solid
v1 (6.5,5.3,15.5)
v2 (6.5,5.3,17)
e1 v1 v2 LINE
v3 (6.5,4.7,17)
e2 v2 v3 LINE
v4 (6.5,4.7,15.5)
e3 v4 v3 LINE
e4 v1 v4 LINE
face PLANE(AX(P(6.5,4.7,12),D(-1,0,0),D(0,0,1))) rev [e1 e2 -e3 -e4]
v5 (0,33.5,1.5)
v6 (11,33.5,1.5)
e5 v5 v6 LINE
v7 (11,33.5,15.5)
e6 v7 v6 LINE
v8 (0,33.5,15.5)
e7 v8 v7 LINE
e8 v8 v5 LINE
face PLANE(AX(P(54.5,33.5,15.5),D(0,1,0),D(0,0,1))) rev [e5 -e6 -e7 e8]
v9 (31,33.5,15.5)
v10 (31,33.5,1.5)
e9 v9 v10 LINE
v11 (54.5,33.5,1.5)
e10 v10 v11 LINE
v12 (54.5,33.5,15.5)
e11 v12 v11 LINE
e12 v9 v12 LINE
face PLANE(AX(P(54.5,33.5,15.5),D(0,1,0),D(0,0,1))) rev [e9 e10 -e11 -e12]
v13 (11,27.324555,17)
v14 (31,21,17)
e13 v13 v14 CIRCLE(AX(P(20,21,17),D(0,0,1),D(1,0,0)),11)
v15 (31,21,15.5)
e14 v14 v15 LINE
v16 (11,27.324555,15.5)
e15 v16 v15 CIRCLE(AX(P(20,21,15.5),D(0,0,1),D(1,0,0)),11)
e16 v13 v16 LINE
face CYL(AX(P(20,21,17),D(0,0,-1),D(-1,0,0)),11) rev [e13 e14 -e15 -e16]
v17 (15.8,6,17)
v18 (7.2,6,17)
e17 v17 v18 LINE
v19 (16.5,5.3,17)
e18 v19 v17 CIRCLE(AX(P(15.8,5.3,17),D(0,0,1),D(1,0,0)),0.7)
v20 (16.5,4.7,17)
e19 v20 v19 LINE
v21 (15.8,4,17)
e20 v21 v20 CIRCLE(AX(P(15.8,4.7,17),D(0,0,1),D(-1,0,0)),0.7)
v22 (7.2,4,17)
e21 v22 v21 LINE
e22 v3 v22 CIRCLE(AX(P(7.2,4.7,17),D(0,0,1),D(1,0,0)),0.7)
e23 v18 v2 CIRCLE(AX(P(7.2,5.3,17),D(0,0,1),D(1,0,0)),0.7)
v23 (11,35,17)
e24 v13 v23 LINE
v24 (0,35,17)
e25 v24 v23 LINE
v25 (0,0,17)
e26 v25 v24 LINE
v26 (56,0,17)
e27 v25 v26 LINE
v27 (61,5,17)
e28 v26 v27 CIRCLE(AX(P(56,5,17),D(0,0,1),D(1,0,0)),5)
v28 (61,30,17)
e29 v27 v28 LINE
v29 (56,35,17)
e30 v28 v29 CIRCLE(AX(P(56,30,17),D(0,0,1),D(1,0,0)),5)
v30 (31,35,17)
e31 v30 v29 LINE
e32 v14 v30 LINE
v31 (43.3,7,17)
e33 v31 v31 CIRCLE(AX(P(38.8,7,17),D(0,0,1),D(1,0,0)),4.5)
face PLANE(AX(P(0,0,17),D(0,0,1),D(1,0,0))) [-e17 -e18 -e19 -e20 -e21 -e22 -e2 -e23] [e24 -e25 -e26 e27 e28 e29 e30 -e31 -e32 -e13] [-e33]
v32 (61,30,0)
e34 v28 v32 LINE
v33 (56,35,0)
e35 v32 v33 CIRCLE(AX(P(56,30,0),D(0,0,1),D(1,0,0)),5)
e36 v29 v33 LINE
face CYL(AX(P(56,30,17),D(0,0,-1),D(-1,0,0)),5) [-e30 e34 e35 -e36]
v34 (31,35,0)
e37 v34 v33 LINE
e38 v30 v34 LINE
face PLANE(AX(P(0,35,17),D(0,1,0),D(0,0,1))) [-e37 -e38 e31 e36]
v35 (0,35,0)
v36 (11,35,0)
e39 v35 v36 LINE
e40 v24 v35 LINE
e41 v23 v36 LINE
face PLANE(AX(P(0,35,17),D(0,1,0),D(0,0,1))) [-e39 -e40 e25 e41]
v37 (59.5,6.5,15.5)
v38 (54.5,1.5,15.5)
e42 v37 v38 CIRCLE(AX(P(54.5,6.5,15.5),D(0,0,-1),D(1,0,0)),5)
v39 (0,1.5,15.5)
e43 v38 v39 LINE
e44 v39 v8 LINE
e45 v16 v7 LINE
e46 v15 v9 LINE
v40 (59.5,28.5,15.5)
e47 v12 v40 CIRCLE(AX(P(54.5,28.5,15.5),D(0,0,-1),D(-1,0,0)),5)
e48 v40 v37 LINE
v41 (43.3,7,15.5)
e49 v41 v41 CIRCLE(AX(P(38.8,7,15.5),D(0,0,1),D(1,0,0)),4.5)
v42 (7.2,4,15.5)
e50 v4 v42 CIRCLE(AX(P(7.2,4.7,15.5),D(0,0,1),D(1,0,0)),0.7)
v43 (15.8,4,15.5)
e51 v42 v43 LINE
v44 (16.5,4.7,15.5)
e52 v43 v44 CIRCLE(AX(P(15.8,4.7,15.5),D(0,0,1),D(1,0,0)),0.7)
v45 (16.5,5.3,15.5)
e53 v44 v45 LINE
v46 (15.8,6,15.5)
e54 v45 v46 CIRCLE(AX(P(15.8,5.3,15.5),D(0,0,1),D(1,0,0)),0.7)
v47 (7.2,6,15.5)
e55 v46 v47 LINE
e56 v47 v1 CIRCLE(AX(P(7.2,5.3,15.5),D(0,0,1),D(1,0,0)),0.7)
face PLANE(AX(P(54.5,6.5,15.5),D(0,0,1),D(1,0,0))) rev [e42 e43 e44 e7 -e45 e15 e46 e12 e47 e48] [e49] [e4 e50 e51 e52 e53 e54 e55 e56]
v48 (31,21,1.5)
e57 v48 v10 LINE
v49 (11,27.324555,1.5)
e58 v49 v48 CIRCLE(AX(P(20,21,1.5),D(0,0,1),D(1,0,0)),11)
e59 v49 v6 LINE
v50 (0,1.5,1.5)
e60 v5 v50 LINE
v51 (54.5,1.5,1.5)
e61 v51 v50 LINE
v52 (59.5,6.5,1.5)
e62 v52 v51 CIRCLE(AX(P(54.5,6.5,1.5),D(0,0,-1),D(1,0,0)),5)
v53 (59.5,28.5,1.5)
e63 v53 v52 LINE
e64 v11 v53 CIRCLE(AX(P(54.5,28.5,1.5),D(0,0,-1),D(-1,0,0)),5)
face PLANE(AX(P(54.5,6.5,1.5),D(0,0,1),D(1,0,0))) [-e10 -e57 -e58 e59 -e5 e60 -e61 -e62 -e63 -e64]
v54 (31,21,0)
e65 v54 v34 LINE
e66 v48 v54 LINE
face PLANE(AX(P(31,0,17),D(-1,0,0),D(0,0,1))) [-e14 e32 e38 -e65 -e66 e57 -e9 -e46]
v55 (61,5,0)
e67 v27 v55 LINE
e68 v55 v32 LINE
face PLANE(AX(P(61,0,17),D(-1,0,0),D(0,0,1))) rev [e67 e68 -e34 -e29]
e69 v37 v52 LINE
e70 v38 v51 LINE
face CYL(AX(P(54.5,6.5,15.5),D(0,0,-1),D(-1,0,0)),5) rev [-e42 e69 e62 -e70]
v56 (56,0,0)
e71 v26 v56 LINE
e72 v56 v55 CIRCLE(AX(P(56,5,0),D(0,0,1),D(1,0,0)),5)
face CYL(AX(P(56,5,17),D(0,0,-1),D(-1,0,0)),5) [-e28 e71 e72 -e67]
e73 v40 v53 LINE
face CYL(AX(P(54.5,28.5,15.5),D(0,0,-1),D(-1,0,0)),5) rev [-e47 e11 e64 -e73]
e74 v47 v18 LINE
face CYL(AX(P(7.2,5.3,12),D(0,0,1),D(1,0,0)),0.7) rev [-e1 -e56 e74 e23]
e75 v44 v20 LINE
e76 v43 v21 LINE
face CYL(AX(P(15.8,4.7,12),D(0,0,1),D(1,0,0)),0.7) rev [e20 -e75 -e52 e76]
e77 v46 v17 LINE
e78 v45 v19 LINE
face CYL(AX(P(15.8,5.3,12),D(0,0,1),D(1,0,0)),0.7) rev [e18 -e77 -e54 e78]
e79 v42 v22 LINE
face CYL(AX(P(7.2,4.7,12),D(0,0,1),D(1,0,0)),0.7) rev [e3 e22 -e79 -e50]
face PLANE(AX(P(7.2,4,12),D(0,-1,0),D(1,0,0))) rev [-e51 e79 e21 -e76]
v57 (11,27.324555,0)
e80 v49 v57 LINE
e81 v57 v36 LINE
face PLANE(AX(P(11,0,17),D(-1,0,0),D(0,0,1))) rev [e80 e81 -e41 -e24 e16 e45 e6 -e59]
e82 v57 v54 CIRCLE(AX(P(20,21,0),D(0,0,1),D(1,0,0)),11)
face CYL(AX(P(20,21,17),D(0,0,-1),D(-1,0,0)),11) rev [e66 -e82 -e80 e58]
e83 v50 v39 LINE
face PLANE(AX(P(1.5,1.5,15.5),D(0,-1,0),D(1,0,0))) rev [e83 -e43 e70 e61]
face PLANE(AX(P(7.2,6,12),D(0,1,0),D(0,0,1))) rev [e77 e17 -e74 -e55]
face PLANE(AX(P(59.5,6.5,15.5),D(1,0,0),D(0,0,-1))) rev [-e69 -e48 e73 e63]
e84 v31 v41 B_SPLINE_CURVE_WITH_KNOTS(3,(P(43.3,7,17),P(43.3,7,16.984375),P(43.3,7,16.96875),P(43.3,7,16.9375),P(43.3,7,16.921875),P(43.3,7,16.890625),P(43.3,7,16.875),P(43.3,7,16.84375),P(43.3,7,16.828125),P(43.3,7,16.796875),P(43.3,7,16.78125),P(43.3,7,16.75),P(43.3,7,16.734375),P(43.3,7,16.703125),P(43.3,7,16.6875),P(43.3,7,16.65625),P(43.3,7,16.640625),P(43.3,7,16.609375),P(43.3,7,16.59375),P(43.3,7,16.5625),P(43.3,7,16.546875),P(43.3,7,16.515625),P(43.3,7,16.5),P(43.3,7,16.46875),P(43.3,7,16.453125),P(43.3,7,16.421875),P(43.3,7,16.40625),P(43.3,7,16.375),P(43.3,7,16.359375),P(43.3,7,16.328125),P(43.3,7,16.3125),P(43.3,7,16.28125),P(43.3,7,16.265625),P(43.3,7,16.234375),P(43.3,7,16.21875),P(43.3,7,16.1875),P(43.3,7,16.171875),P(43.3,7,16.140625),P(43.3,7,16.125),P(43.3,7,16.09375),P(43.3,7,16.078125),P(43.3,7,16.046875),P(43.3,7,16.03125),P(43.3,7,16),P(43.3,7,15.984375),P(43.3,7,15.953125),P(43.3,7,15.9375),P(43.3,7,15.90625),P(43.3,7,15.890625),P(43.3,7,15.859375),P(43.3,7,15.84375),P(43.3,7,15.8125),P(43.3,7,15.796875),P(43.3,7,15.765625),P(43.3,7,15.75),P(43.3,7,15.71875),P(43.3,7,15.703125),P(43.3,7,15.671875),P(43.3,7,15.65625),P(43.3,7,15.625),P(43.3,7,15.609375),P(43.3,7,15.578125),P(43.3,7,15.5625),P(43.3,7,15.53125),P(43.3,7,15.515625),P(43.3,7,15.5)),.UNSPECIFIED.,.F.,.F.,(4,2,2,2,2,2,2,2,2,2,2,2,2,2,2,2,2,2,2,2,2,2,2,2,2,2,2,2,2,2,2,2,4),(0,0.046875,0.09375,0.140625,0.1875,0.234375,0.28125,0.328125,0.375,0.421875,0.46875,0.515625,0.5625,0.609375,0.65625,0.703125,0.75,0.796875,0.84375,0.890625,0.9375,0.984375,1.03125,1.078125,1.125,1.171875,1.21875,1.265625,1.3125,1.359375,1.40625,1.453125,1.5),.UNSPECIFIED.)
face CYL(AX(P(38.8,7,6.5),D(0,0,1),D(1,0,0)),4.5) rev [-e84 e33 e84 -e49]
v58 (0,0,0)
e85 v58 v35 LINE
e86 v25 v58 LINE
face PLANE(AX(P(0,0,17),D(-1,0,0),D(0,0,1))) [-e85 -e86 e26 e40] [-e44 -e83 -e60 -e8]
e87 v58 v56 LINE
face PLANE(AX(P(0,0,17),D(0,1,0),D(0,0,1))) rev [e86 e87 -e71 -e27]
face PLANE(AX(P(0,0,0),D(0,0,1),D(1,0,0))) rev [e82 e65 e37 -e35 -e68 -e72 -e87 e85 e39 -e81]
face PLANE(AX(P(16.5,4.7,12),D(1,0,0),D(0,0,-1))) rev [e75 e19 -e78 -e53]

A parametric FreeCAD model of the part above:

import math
import FreeCAD as App
import Part
import Sketcher
Q = App.Units.Quantity

doc = App.newDocument("Part")
params = doc.addObject("Spreadsheet::Sheet", "Params")
for row, (alias, value) in enumerate([
    ("sketch1_radius", "5 mm"),
    ("sketch1_radius2", "11 mm"),
    ("sketch1_width", "25 mm"),
    ("sketch1_width2", "11 mm"),
    ("sketch1_width3", "56 mm"),
    ("pad1_length", "17 mm"),
    ("sketch2_radius", "5 mm"),
    ("sketch2_width", "53 mm"),
    ("sketch2_height", "22 mm"),
    ("pocket1_length", "14 mm"),
    ("sketch3_radius", "0.7 mm"),
    ("sketch3_width", "8.6 mm"),
    ("sketch3_height", "0.6 mm"),
    ("pocket2_length", "5 mm"),
    ("sketch4_width", "32 mm"),
    ("sketch4_height", "14 mm"),
    ("pocket3_length", "11 mm"),
    ("sketch5_diameter", "9 mm"),
    ("pocket4_length", "10.5 mm"),
], start=1):
    params.set(f"A{row}", alias)
    params.set(f"B{row}", "=" + value)
    params.setAlias(f"B{row}", alias)

body = doc.addObject("PartDesign::Body", "Body")

# Sketch on XY plane
sketch1 = doc.addObject("Sketcher::SketchObject", "Sketch")
body.addObject(sketch1)
sketch1.AttachmentSupport = (doc.XY_Plane, [""])
sketch1.MapMode = "FlatFace"
sketch1.addGeometry(Part.LineSegment(App.Vector(61, 5, 0), App.Vector(61, 30, 0)), False)
sketch1.addGeometry(Part.ArcOfCircle(Part.Circle(App.Vector(56, 30, 0), App.Vector(0, 0, 1), 5), math.radians(0), math.radians(90)), False)
sketch1.addGeometry(Part.LineSegment(App.Vector(56, 35, 0), App.Vector(31, 35, 0)), False)
sketch1.addGeometry(Part.LineSegment(App.Vector(31, 35, 0), App.Vector(31, 21, 0)), False)
sketch1.addGeometry(Part.ArcOfCircle(Part.Circle(App.Vector(20, 21, 0), App.Vector(0, 0, 1), 11), math.radians(145), math.radians(360)), False)
sketch1.addGeometry(Part.LineSegment(App.Vector(11, 27, 0), App.Vector(11, 35, 0)), False)
sketch1.addGeometry(Part.LineSegment(App.Vector(11, 35, 0), App.Vector(0, 35, 0)), False)
sketch1.addGeometry(Part.LineSegment(App.Vector(0, 35, 0), App.Vector(0, 0, 0)), False)
sketch1.addGeometry(Part.LineSegment(App.Vector(0, 0, 0), App.Vector(56, 0, 0)), False)
sketch1.addGeometry(Part.ArcOfCircle(Part.Circle(App.Vector(56, 5, 0), App.Vector(0, 0, 1), 5), math.radians(-90), math.radians(0)), False)
sketch1.addConstraint(Sketcher.Constraint("Tangent", 0, 2, 1, 1))
sketch1.addConstraint(Sketcher.Constraint("Tangent", 1, 2, 2, 1))
sketch1.addConstraint(Sketcher.Constraint("Coincident", 2, 2, 3, 1))
sketch1.addConstraint(Sketcher.Constraint("Tangent", 3, 2, 4, 2))
sketch1.addConstraint(Sketcher.Constraint("Coincident", 4, 1, 5, 1))
sketch1.addConstraint(Sketcher.Constraint("Coincident", 5, 2, 6, 1))
sketch1.addConstraint(Sketcher.Constraint("Coincident", 6, 2, 7, 1))
sketch1.addConstraint(Sketcher.Constraint("Coincident", 7, 2, 8, 1))
sketch1.addConstraint(Sketcher.Constraint("Tangent", 8, 2, 9, 1))
sketch1.addConstraint(Sketcher.Constraint("Tangent", 9, 2, 0, 1))
sketch1.addConstraint(Sketcher.Constraint("Vertical", 0))
sketch1.addConstraint(Sketcher.Constraint("Horizontal", 2))
sketch1.addConstraint(Sketcher.Constraint("Vertical", 3))
sketch1.addConstraint(Sketcher.Constraint("Vertical", 5))
sketch1.addConstraint(Sketcher.Constraint("Horizontal", 6))
sketch1.addConstraint(Sketcher.Constraint("Vertical", 7))
sketch1.addConstraint(Sketcher.Constraint("Horizontal", 8))
sketch1.addConstraint(Sketcher.Constraint("Coincident", 7, 2, -1, 1))
sketch1.addConstraint(Sketcher.Constraint("Equal", 1, 9))
sketch1.addConstraint(Sketcher.Constraint("Horizontal", 2, 2, 5, 2))
sketch1.addConstraint(Sketcher.Constraint("Equal", 2, 0))
sketch1.addConstraint(Sketcher.Constraint("Radius", 1, Q("5 mm")))
sketch1.addConstraint(Sketcher.Constraint("Radius", 4, Q("11 mm")))
sketch1.addConstraint(Sketcher.Constraint("DistanceX", 2, 2, 2, 1, Q("25 mm")))
sketch1.addConstraint(Sketcher.Constraint("DistanceX", 6, 2, 6, 1, Q("11 mm")))
sketch1.addConstraint(Sketcher.Constraint("DistanceX", 8, 1, 8, 2, Q("56 mm")))
sketch1.addConstraint(Sketcher.Constraint("DistanceY", 3, 2, 3, 1, Q("14 mm")))
sketch1.setExpression("Constraints[21]", "Params.sketch1_radius")
sketch1.setExpression("Constraints[22]", "Params.sketch1_radius2")
sketch1.setExpression("Constraints[23]", "Params.sketch1_width")
sketch1.setExpression("Constraints[24]", "Params.sketch1_width2")
sketch1.setExpression("Constraints[25]", "Params.sketch1_width3")
pad1 = doc.addObject("PartDesign::Pad", "Pad")
body.addObject(pad1)
pad1.Profile = sketch1
pad1.setExpression("Length", "Params.pad1_length")

# Sketch on XY plane
sketch2 = doc.addObject("Sketcher::SketchObject", "Sketch001")
body.addObject(sketch2)
sketch2.AttachmentSupport = (doc.XY_Plane, [""])
sketch2.MapMode = "FlatFace"
sketch2.AttachmentOffset = App.Placement(App.Vector(0, 0, 1.5), App.Rotation())
sketch2.addGeometry(Part.LineSegment(App.Vector(2, 34, 0), App.Vector(54, 34, 0)), False)
sketch2.addGeometry(Part.ArcOfCircle(Part.Circle(App.Vector(54, 28, 0), App.Vector(0, 0, 1), 5), math.radians(0), math.radians(90)), False)
sketch2.addGeometry(Part.LineSegment(App.Vector(60, 28, 0), App.Vector(60, 6, 0)), False)
sketch2.addGeometry(Part.ArcOfCircle(Part.Circle(App.Vector(54, 6, 0), App.Vector(0, 0, 1), 5), math.radians(-90), math.radians(0)), False)
sketch2.addGeometry(Part.LineSegment(App.Vector(54, 2, 0), App.Vector(2, 2, 0)), False)
sketch2.addGeometry(Part.LineSegment(App.Vector(2, 2, 0), App.Vector(2, 34, 0)), False)
sketch2.addConstraint(Sketcher.Constraint("Tangent", 0, 2, 1, 2))
sketch2.addConstraint(Sketcher.Constraint("Tangent", 1, 1, 2, 1))
sketch2.addConstraint(Sketcher.Constraint("Tangent", 2, 2, 3, 2))
sketch2.addConstraint(Sketcher.Constraint("Tangent", 3, 1, 4, 1))
sketch2.addConstraint(Sketcher.Constraint("Coincident", 4, 2, 5, 1))
sketch2.addConstraint(Sketcher.Constraint("Coincident", 5, 2, 0, 1))
sketch2.addConstraint(Sketcher.Constraint("Horizontal", 0))
sketch2.addConstraint(Sketcher.Constraint("Vertical", 2))
sketch2.addConstraint(Sketcher.Constraint("Horizontal", 4))
sketch2.addConstraint(Sketcher.Constraint("Vertical", 5))
sketch2.addConstraint(Sketcher.Constraint("Equal", 1, 3))
sketch2.addConstraint(Sketcher.Constraint("Radius", 1, Q("5 mm")))
sketch2.addConstraint(Sketcher.Constraint("DistanceX", 0, 1, 0, 2, Q("53 mm")))
sketch2.addConstraint(Sketcher.Constraint("DistanceY", 2, 2, 2, 1, Q("22 mm")))
sketch2.addConstraint(Sketcher.Constraint("DistanceX", -1, 1, 1, 3, Q("54.5 mm")))
sketch2.addConstraint(Sketcher.Constraint("DistanceY", -1, 1, 1, 3, Q("28.5 mm")))
sketch2.setExpression("Constraints[11]", "Params.sketch2_radius")
sketch2.setExpression("Constraints[12]", "Params.sketch2_width")
sketch2.setExpression("Constraints[13]", "Params.sketch2_height")
pocket1 = doc.addObject("PartDesign::Pocket", "Pocket")
body.addObject(pocket1)
pocket1.Profile = sketch2
pocket1.setExpression("Length", "Params.pocket1_length")
pocket1.Reversed = True

# Sketch on XY plane
sketch3 = doc.addObject("Sketcher::SketchObject", "Sketch002")
body.addObject(sketch3)
sketch3.AttachmentSupport = (doc.XY_Plane, [""])
sketch3.MapMode = "FlatFace"
sketch3.AttachmentOffset = App.Placement(App.Vector(0, 0, 17), App.Rotation())
sketch3.addGeometry(Part.LineSegment(App.Vector(7.2, 4, 0), App.Vector(15.8, 4, 0)), False)
sketch3.addGeometry(Part.ArcOfCircle(Part.Circle(App.Vector(15.8, 4.7, 0), App.Vector(0, 0, 1), 0.7), math.radians(-90), math.radians(0)), False)
sketch3.addGeometry(Part.LineSegment(App.Vector(16.5, 4.7, 0), App.Vector(16.5, 5.3, 0)), False)
sketch3.addGeometry(Part.ArcOfCircle(Part.Circle(App.Vector(15.8, 5.3, 0), App.Vector(0, 0, 1), 0.7), math.radians(0), math.radians(90)), False)
sketch3.addGeometry(Part.LineSegment(App.Vector(15.8, 6, 0), App.Vector(7.2, 6, 0)), False)
sketch3.addGeometry(Part.ArcOfCircle(Part.Circle(App.Vector(7.2, 5.3, 0), App.Vector(0, 0, 1), 0.7), math.radians(90), math.radians(180)), False)
sketch3.addGeometry(Part.LineSegment(App.Vector(6.5, 5.3, 0), App.Vector(6.5, 4.7, 0)), False)
sketch3.addGeometry(Part.ArcOfCircle(Part.Circle(App.Vector(7.2, 4.7, 0), App.Vector(0, 0, 1), 0.7), math.radians(180), math.radians(270)), False)
sketch3.addConstraint(Sketcher.Constraint("Tangent", 0, 2, 1, 1))
sketch3.addConstraint(Sketcher.Constraint("Tangent", 1, 2, 2, 1))
sketch3.addConstraint(Sketcher.Constraint("Tangent", 2, 2, 3, 1))
sketch3.addConstraint(Sketcher.Constraint("Tangent", 3, 2, 4, 1))
sketch3.addConstraint(Sketcher.Constraint("Tangent", 4, 2, 5, 1))
sketch3.addConstraint(Sketcher.Constraint("Tangent", 5, 2, 6, 1))
sketch3.addConstraint(Sketcher.Constraint("Tangent", 6, 2, 7, 1))
sketch3.addConstraint(Sketcher.Constraint("Tangent", 7, 2, 0, 1))
sketch3.addConstraint(Sketcher.Constraint("Horizontal", 0))
sketch3.addConstraint(Sketcher.Constraint("Vertical", 2))
sketch3.addConstraint(Sketcher.Constraint("Horizontal", 4))
sketch3.addConstraint(Sketcher.Constraint("Vertical", 6))
sketch3.addConstraint(Sketcher.Constraint("Equal", 1, 3))
sketch3.addConstraint(Sketcher.Constraint("Equal", 3, 5))
sketch3.addConstraint(Sketcher.Constraint("Equal", 5, 7))
sketch3.addConstraint(Sketcher.Constraint("Radius", 1, Q("0.7 mm")))
sketch3.addConstraint(Sketcher.Constraint("DistanceX", 0, 1, 0, 2, Q("8.6 mm")))
sketch3.addConstraint(Sketcher.Constraint("DistanceY", 2, 1, 2, 2, Q("0.6 mm")))
sketch3.addConstraint(Sketcher.Constraint("DistanceY", -1, 1, 0, 2, Q("4 mm")))
sketch3.addConstraint(Sketcher.Constraint("DistanceX", -1, 1, 1, 3, Q("15.8 mm")))
sketch3.setExpression("Constraints[15]", "Params.sketch3_radius")
sketch3.setExpression("Constraints[16]", "Params.sketch3_width")
sketch3.setExpression("Constraints[17]", "Params.sketch3_height")
pocket2 = doc.addObject("PartDesign::Pocket", "Pocket001")
body.addObject(pocket2)
pocket2.Profile = sketch3
pocket2.setExpression("Length", "Params.pocket2_length")

# Sketch on YZ plane
sketch4 = doc.addObject("Sketcher::SketchObject", "Sketch003")
body.addObject(sketch4)
sketch4.AttachmentSupport = (doc.YZ_Plane, [""])
sketch4.MapMode = "FlatFace"
sketch4.addGeometry(Part.LineSegment(App.Vector(34, 2, 0), App.Vector(2, 2, 0)), False)
sketch4.addGeometry(Part.LineSegment(App.Vector(2, 2, 0), App.Vector(2, 16, 0)), False)
sketch4.addGeometry(Part.LineSegment(App.Vector(2, 16, 0), App.Vector(34, 16, 0)), False)
sketch4.addGeometry(Part.LineSegment(App.Vector(34, 16, 0), App.Vector(34, 2, 0)), False)
sketch4.addConstraint(Sketcher.Constraint("Coincident", 0, 2, 1, 1))
sketch4.addConstraint(Sketcher.Constraint("Coincident", 1, 2, 2, 1))
sketch4.addConstraint(Sketcher.Constraint("Coincident", 2, 2, 3, 1))
sketch4.addConstraint(Sketcher.Constraint("Coincident", 3, 2, 0, 1))
sketch4.addConstraint(Sketcher.Constraint("Horizontal", 0))
sketch4.addConstraint(Sketcher.Constraint("Vertical", 1))
sketch4.addConstraint(Sketcher.Constraint("Horizontal", 2))
sketch4.addConstraint(Sketcher.Constraint("Vertical", 3))
sketch4.addConstraint(Sketcher.Constraint("DistanceX", 0, 2, 0, 1, Q("32 mm")))
sketch4.addConstraint(Sketcher.Constraint("DistanceY", 1, 1, 1, 2, Q("14 mm")))
sketch4.addConstraint(Sketcher.Constraint("DistanceX", -1, 1, 0, 2, Q("1.5 mm")))
sketch4.addConstraint(Sketcher.Constraint("DistanceY", -1, 1, 0, 2, Q("1.5 mm")))
sketch4.setExpression("Constraints[8]", "Params.sketch4_width")
sketch4.setExpression("Constraints[9]", "Params.sketch4_height")
pocket3 = doc.addObject("PartDesign::Pocket", "Pocket002")
body.addObject(pocket3)
pocket3.Profile = sketch4
pocket3.setExpression("Length", "Params.pocket3_length")
pocket3.Reversed = True

# Sketch on XY plane
sketch5 = doc.addObject("Sketcher::SketchObject", "Sketch004")
body.addObject(sketch5)
sketch5.AttachmentSupport = (doc.XY_Plane, [""])
sketch5.MapMode = "FlatFace"
sketch5.AttachmentOffset = App.Placement(App.Vector(0, 0, 17), App.Rotation())
sketch5.addGeometry(Part.Circle(App.Vector(38.8, 7, 0), App.Vector(0, 0, 1), 4.5), False)
sketch5.addConstraint(Sketcher.Constraint("Diameter", 0, Q("9 mm")))
sketch5.addConstraint(Sketcher.Constraint("DistanceY", -1, 1, 0, 3, Q("7 mm")))
sketch5.addConstraint(Sketcher.Constraint("DistanceX", -1, 1, 0, 3, Q("38.8 mm")))
sketch5.setExpression("Constraints[0]", "Params.sketch5_diameter")
pocket4 = doc.addObject("PartDesign::Pocket", "Pocket003")
body.addObject(pocket4)
pocket4.Profile = sketch5
pocket4.setExpression("Length", "Params.pocket4_length")

doc.recompute()
